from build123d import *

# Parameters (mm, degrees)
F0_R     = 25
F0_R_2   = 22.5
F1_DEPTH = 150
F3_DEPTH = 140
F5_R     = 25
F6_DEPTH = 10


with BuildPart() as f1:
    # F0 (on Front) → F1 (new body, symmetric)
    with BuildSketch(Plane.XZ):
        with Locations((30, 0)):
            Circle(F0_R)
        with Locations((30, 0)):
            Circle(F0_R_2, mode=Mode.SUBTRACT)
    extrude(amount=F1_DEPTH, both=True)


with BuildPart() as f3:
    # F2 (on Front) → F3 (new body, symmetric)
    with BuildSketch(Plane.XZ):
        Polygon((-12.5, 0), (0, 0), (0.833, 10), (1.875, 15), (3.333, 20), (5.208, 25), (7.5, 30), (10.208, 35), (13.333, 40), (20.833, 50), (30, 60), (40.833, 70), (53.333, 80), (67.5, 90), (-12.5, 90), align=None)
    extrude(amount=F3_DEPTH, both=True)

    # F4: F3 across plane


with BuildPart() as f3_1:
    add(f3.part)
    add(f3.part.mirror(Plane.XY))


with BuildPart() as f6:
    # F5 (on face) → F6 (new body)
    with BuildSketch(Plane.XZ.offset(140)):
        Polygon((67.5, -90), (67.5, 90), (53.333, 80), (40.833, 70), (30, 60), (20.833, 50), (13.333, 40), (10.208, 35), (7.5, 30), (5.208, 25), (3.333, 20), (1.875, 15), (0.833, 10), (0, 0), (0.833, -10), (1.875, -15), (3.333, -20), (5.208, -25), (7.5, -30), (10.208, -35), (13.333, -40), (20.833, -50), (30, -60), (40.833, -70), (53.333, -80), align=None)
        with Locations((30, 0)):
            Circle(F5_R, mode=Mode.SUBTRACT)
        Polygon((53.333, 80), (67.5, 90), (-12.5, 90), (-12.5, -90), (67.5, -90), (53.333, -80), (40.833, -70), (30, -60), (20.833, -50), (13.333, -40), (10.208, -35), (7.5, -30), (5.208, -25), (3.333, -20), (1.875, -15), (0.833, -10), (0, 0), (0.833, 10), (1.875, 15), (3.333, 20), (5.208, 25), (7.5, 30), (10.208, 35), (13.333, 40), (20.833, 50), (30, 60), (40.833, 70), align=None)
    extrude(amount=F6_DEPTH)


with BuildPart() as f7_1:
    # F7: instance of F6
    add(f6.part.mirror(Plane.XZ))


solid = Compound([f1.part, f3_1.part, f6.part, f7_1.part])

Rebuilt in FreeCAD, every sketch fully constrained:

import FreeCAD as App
import Part
import Sketcher
from FreeCAD import Vector

doc = App.newDocument("Part")
body = doc.addObject("PartDesign::Body", "Body")

# Sketch on XZ plane
sketch1 = body.newObject("Sketcher::SketchObject", "Sketch")
sketch1.AttachmentSupport = (doc.getObject("XZ_Plane"), [""])
sketch1.MapMode = "FlatFace"
sketch1.addGeometry(Part.Circle(Vector(30, 0, 0), Vector(0, 0, 1), 25), False)
sketch1.addGeometry(Part.Circle(Vector(30, 0, 0), Vector(0, 0, 1), 22), False)
sketch1.addConstraint(Sketcher.Constraint("Coincident", 1, 3, 0, 3))
sketch1.addConstraint(Sketcher.Constraint("PointOnObject", 0, 3, -1))
sketch1.addConstraint(Sketcher.Constraint("Diameter", 0, 50.0))
sketch1.addConstraint(Sketcher.Constraint("Diameter", 1, 45.0))
sketch1.addConstraint(Sketcher.Constraint("DistanceX", -1, 1, 0, 3, 30.0))
pad1 = body.newObject("PartDesign::Pad", "Pad")
pad1.Profile = sketch1
pad1.Length = 300
pad1.Midplane = True
body2 = doc.addObject("PartDesign::Body", "Body001")

# Sketch on XZ plane
sketch2 = body2.newObject("Sketcher::SketchObject", "Sketch001")
sketch2.AttachmentSupport = (doc.getObject("XZ_Plane001"), [""])
sketch2.MapMode = "FlatFace"
sketch2.addGeometry(Part.LineSegment(Vector(-12, 0, 0), Vector(0, 0, 0)), False)
sketch2.addGeometry(Part.LineSegment(Vector(0, 0, 0), Vector(1, 10, 0)), False)
sketch2.addGeometry(Part.LineSegment(Vector(1, 10, 0), Vector(2, 15, 0)), False)
sketch2.addGeometry(Part.LineSegment(Vector(2, 15, 0), Vector(3, 20, 0)), False)
sketch2.addGeometry(Part.LineSegment(Vector(3, 20, 0), Vector(5, 25, 0)), False)
sketch2.addGeometry(Part.LineSegment(Vector(5, 25, 0), Vector(8, 30, 0)), False)
sketch2.addGeometry(Part.LineSegment(Vector(8, 30, 0), Vector(10, 35, 0)), False)
sketch2.addGeometry(Part.LineSegment(Vector(10, 35, 0), Vector(13, 40, 0)), False)
sketch2.addGeometry(Part.LineSegment(Vector(13, 40, 0), Vector(21, 50, 0)), False)
sketch2.addGeometry(Part.LineSegment(Vector(21, 50, 0), Vector(30, 60, 0)), False)
sketch2.addGeometry(Part.LineSegment(Vector(30, 60, 0), Vector(41, 70, 0)), False)
sketch2.addGeometry(Part.LineSegment(Vector(41, 70, 0), Vector(53, 80, 0)), False)
sketch2.addGeometry(Part.LineSegment(Vector(53, 80, 0), Vector(68, 90, 0)), False)
sketch2.addGeometry(Part.LineSegment(Vector(68, 90, 0), Vector(-12, 90, 0)), False)
sketch2.addGeometry(Part.LineSegment(Vector(-12, 90, 0), Vector(-12, 0, 0)), False)
sketch2.addConstraint(Sketcher.Constraint("Coincident", 0, 2, 1, 1))
sketch2.addConstraint(Sketcher.Constraint("Coincident", 1, 2, 2, 1))
sketch2.addConstraint(Sketcher.Constraint("Coincident", 2, 2, 3, 1))
sketch2.addConstraint(Sketcher.Constraint("Coincident", 3, 2, 4, 1))
sketch2.addConstraint(Sketcher.Constraint("Coincident", 4, 2, 5, 1))
sketch2.addConstraint(Sketcher.Constraint("Coincident", 5, 2, 6, 1))
sketch2.addConstraint(Sketcher.Constraint("Coincident", 6, 2, 7, 1))
sketch2.addConstraint(Sketcher.Constraint("Coincident", 7, 2, 8, 1))
sketch2.addConstraint(Sketcher.Constraint("Coincident", 8, 2, 9, 1))
sketch2.addConstraint(Sketcher.Constraint("Coincident", 9, 2, 10, 1))
sketch2.addConstraint(Sketcher.Constraint("Coincident", 10, 2, 11, 1))
sketch2.addConstraint(Sketcher.Constraint("Coincident", 11, 2, 12, 1))
sketch2.addConstraint(Sketcher.Constraint("Coincident", 12, 2, 13, 1))
sketch2.addConstraint(Sketcher.Constraint("Coincident", 13, 2, 14, 1))
sketch2.addConstraint(Sketcher.Constraint("Coincident", 14, 2, 0, 1))
sketch2.addConstraint(Sketcher.Constraint("Horizontal", 0))
sketch2.addConstraint(Sketcher.Constraint("Horizontal", 13))
sketch2.addConstraint(Sketcher.Constraint("Vertical", 14))
sketch2.addConstraint(Sketcher.Constraint("Coincident", 0, 2, -1, 1))
sketch2.addConstraint(Sketcher.Constraint("DistanceX", 13, 2, 13, 1, 80.0))
sketch2.addConstraint(Sketcher.Constraint("DistanceY", 14, 2, 14, 1, 90.0))
sketch2.addConstraint(Sketcher.Constraint("DistanceX", 0, 1, 0, 2, 12.5))
sketch2.addConstraint(Sketcher.Constraint("DistanceY", -1, 1, 1, 2, 10.0))
sketch2.addConstraint(Sketcher.Constraint("DistanceY", -1, 1, 2, 2, 15.0))
sketch2.addConstraint(Sketcher.Constraint("DistanceY", -1, 1, 3, 2, 20.0))
sketch2.addConstraint(Sketcher.Constraint("DistanceY", -1, 1, 4, 2, 25.0))
sketch2.addConstraint(Sketcher.Constraint("DistanceY", -1, 1, 5, 2, 30.0))
sketch2.addConstraint(Sketcher.Constraint("DistanceY", -1, 1, 6, 2, 35.0))
sketch2.addConstraint(Sketcher.Constraint("DistanceY", -1, 1, 7, 2, 40.0))
sketch2.addConstraint(Sketcher.Constraint("DistanceY", -1, 1, 8, 2, 50.0))
sketch2.addConstraint(Sketcher.Constraint("DistanceX", -1, 1, 9, 2, 30.0))
sketch2.addConstraint(Sketcher.Constraint("DistanceY", -1, 1, 9, 2, 60.0))
sketch2.addConstraint(Sketcher.Constraint("DistanceY", -1, 1, 10, 2, 70.0))
sketch2.addConstraint(Sketcher.Constraint("DistanceY", -1, 1, 11, 2, 80.0))
sketch2.addConstraint(Sketcher.Constraint("DistanceX", 4, 2, 6, 2, 5.0))
sketch2.addConstraint(Sketcher.Constraint("DistanceX", 3, 2, 7, 2, 10.0))
sketch2.addConstraint(Sketcher.Constraint("DistanceX", 8, 2, 10, 2, 20.0))
sketch2.addConstraint(Sketcher.Constraint("DistanceX", 7, 2, 11, 2, 40.0))
sketch2.addConstraint(Sketcher.Constraint("Distance", 8, 12.5))
sketch2.addConstraint(Sketcher.Constraint("DistanceX", -1, 1, 5, 2, 7.5))
sketch2.addConstraint(Sketcher.Constraint("DistanceX", 1, 2, 3, 2, 2.5))
sketch2.addConstraint(Sketcher.Constraint("DistanceX", -1, 1, 1, 2, 0.833))
sketch2.addConstraint(Sketcher.Constraint("DistanceX", -1, 1, 2, 2, 1.875))
sketch2.addConstraint(Sketcher.Constraint("DistanceX", -1, 1, 4, 2, 5.208))
pad2 = body2.newObject("PartDesign::Pad", "Pad001")
pad2.Profile = sketch2
pad2.Length = 280
pad2.Midplane = True
body3 = doc.addObject("PartDesign::Body", "Body002")
doc.recompute()

body3.BaseFeature = body2
doc.recompute()

mirroring = doc.addObject("Part::Mirroring", "Mirroring")
mirroring.Source = body2
mirroring.Base = Vector(0, 0, 0)
mirroring.Normal = Vector(0, 0, 1)
body4 = doc.addObject("PartDesign::Body", "Body003")
body4.BaseFeature = mirroring
boolean = body3.newObject("PartDesign::Boolean", "Boolean")
boolean.Type = "Fuse"
boolean.addObjects([body4])
doc.recompute()
body5 = doc.addObject("PartDesign::Body", "Body004")

# Sketch on XZ plane
sketch3 = body5.newObject("Sketcher::SketchObject", "Sketch002")
sketch3.AttachmentSupport = (doc.getObject("XZ_Plane004"), [""])
sketch3.MapMode = "FlatFace"
sketch3.AttachmentOffset = App.Placement(Vector(0, 0, 140), App.Rotation())
sketch3.addGeometry(Part.LineSegment(Vector(68, -90, 0), Vector(68, 90, 0)), False)
sketch3.addGeometry(Part.LineSegment(Vector(68, 90, 0), Vector(-12, 90, 0)), False)
sketch3.addGeometry(Part.LineSegment(Vector(-12, 90, 0), Vector(-12, -90, 0)), False)
sketch3.addGeometry(Part.LineSegment(Vector(-12, -90, 0), Vector(68, -90, 0)), False)
sketch3.addGeometry(Part.Circle(Vector(30, 0, 0), Vector(0, 0, 1), 25), False)
sketch3.addConstraint(Sketcher.Constraint("Coincident", 0, 2, 1, 1))
sketch3.addConstraint(Sketcher.Constraint("Coincident", 1, 2, 2, 1))
sketch3.addConstraint(Sketcher.Constraint("Coincident", 2, 2, 3, 1))
sketch3.addConstraint(Sketcher.Constraint("Coincident", 3, 2, 0, 1))
sketch3.addConstraint(Sketcher.Constraint("Vertical", 0))
sketch3.addConstraint(Sketcher.Constraint("Horizontal", 1))
sketch3.addConstraint(Sketcher.Constraint("Vertical", 2))
sketch3.addConstraint(Sketcher.Constraint("Horizontal", 3))
sketch3.addConstraint(Sketcher.Constraint("PointOnObject", 4, 3, -1))
sketch3.addConstraint(Sketcher.Constraint("Diameter", 4, 50.0))
sketch3.addConstraint(Sketcher.Constraint("DistanceX", 1, 2, 1, 1, 80.0))
sketch3.addConstraint(Sketcher.Constraint("DistanceY", 0, 1, 0, 2, 180.0))
sketch3.addConstraint(Sketcher.Constraint("DistanceX", -1, 1, 4, 3, 30.0))
sketch3.addConstraint(Sketcher.Constraint("DistanceY", -1, 1, 0, 2, 90.0))
sketch3.addConstraint(Sketcher.Constraint("DistanceX", -1, 1, 0, 2, 67.5))
pad3 = body5.newObject("PartDesign::Pad", "Pad002")
pad3.Profile = sketch3
pad3.Length = 10
body6 = doc.addObject("PartDesign::Body", "Body005")
doc.recompute()

mirroring2 = doc.addObject("Part::Mirroring", "Mirroring001")
mirroring2.Source = body5
mirroring2.Base = Vector(0, 0, 0)
mirroring2.Normal = Vector(0, -1, 0)
body6.BaseFeature = mirroring2
doc.recompute()
mirroring.Visibility = False
mirroring2.Visibility = False

doc.recompute()
